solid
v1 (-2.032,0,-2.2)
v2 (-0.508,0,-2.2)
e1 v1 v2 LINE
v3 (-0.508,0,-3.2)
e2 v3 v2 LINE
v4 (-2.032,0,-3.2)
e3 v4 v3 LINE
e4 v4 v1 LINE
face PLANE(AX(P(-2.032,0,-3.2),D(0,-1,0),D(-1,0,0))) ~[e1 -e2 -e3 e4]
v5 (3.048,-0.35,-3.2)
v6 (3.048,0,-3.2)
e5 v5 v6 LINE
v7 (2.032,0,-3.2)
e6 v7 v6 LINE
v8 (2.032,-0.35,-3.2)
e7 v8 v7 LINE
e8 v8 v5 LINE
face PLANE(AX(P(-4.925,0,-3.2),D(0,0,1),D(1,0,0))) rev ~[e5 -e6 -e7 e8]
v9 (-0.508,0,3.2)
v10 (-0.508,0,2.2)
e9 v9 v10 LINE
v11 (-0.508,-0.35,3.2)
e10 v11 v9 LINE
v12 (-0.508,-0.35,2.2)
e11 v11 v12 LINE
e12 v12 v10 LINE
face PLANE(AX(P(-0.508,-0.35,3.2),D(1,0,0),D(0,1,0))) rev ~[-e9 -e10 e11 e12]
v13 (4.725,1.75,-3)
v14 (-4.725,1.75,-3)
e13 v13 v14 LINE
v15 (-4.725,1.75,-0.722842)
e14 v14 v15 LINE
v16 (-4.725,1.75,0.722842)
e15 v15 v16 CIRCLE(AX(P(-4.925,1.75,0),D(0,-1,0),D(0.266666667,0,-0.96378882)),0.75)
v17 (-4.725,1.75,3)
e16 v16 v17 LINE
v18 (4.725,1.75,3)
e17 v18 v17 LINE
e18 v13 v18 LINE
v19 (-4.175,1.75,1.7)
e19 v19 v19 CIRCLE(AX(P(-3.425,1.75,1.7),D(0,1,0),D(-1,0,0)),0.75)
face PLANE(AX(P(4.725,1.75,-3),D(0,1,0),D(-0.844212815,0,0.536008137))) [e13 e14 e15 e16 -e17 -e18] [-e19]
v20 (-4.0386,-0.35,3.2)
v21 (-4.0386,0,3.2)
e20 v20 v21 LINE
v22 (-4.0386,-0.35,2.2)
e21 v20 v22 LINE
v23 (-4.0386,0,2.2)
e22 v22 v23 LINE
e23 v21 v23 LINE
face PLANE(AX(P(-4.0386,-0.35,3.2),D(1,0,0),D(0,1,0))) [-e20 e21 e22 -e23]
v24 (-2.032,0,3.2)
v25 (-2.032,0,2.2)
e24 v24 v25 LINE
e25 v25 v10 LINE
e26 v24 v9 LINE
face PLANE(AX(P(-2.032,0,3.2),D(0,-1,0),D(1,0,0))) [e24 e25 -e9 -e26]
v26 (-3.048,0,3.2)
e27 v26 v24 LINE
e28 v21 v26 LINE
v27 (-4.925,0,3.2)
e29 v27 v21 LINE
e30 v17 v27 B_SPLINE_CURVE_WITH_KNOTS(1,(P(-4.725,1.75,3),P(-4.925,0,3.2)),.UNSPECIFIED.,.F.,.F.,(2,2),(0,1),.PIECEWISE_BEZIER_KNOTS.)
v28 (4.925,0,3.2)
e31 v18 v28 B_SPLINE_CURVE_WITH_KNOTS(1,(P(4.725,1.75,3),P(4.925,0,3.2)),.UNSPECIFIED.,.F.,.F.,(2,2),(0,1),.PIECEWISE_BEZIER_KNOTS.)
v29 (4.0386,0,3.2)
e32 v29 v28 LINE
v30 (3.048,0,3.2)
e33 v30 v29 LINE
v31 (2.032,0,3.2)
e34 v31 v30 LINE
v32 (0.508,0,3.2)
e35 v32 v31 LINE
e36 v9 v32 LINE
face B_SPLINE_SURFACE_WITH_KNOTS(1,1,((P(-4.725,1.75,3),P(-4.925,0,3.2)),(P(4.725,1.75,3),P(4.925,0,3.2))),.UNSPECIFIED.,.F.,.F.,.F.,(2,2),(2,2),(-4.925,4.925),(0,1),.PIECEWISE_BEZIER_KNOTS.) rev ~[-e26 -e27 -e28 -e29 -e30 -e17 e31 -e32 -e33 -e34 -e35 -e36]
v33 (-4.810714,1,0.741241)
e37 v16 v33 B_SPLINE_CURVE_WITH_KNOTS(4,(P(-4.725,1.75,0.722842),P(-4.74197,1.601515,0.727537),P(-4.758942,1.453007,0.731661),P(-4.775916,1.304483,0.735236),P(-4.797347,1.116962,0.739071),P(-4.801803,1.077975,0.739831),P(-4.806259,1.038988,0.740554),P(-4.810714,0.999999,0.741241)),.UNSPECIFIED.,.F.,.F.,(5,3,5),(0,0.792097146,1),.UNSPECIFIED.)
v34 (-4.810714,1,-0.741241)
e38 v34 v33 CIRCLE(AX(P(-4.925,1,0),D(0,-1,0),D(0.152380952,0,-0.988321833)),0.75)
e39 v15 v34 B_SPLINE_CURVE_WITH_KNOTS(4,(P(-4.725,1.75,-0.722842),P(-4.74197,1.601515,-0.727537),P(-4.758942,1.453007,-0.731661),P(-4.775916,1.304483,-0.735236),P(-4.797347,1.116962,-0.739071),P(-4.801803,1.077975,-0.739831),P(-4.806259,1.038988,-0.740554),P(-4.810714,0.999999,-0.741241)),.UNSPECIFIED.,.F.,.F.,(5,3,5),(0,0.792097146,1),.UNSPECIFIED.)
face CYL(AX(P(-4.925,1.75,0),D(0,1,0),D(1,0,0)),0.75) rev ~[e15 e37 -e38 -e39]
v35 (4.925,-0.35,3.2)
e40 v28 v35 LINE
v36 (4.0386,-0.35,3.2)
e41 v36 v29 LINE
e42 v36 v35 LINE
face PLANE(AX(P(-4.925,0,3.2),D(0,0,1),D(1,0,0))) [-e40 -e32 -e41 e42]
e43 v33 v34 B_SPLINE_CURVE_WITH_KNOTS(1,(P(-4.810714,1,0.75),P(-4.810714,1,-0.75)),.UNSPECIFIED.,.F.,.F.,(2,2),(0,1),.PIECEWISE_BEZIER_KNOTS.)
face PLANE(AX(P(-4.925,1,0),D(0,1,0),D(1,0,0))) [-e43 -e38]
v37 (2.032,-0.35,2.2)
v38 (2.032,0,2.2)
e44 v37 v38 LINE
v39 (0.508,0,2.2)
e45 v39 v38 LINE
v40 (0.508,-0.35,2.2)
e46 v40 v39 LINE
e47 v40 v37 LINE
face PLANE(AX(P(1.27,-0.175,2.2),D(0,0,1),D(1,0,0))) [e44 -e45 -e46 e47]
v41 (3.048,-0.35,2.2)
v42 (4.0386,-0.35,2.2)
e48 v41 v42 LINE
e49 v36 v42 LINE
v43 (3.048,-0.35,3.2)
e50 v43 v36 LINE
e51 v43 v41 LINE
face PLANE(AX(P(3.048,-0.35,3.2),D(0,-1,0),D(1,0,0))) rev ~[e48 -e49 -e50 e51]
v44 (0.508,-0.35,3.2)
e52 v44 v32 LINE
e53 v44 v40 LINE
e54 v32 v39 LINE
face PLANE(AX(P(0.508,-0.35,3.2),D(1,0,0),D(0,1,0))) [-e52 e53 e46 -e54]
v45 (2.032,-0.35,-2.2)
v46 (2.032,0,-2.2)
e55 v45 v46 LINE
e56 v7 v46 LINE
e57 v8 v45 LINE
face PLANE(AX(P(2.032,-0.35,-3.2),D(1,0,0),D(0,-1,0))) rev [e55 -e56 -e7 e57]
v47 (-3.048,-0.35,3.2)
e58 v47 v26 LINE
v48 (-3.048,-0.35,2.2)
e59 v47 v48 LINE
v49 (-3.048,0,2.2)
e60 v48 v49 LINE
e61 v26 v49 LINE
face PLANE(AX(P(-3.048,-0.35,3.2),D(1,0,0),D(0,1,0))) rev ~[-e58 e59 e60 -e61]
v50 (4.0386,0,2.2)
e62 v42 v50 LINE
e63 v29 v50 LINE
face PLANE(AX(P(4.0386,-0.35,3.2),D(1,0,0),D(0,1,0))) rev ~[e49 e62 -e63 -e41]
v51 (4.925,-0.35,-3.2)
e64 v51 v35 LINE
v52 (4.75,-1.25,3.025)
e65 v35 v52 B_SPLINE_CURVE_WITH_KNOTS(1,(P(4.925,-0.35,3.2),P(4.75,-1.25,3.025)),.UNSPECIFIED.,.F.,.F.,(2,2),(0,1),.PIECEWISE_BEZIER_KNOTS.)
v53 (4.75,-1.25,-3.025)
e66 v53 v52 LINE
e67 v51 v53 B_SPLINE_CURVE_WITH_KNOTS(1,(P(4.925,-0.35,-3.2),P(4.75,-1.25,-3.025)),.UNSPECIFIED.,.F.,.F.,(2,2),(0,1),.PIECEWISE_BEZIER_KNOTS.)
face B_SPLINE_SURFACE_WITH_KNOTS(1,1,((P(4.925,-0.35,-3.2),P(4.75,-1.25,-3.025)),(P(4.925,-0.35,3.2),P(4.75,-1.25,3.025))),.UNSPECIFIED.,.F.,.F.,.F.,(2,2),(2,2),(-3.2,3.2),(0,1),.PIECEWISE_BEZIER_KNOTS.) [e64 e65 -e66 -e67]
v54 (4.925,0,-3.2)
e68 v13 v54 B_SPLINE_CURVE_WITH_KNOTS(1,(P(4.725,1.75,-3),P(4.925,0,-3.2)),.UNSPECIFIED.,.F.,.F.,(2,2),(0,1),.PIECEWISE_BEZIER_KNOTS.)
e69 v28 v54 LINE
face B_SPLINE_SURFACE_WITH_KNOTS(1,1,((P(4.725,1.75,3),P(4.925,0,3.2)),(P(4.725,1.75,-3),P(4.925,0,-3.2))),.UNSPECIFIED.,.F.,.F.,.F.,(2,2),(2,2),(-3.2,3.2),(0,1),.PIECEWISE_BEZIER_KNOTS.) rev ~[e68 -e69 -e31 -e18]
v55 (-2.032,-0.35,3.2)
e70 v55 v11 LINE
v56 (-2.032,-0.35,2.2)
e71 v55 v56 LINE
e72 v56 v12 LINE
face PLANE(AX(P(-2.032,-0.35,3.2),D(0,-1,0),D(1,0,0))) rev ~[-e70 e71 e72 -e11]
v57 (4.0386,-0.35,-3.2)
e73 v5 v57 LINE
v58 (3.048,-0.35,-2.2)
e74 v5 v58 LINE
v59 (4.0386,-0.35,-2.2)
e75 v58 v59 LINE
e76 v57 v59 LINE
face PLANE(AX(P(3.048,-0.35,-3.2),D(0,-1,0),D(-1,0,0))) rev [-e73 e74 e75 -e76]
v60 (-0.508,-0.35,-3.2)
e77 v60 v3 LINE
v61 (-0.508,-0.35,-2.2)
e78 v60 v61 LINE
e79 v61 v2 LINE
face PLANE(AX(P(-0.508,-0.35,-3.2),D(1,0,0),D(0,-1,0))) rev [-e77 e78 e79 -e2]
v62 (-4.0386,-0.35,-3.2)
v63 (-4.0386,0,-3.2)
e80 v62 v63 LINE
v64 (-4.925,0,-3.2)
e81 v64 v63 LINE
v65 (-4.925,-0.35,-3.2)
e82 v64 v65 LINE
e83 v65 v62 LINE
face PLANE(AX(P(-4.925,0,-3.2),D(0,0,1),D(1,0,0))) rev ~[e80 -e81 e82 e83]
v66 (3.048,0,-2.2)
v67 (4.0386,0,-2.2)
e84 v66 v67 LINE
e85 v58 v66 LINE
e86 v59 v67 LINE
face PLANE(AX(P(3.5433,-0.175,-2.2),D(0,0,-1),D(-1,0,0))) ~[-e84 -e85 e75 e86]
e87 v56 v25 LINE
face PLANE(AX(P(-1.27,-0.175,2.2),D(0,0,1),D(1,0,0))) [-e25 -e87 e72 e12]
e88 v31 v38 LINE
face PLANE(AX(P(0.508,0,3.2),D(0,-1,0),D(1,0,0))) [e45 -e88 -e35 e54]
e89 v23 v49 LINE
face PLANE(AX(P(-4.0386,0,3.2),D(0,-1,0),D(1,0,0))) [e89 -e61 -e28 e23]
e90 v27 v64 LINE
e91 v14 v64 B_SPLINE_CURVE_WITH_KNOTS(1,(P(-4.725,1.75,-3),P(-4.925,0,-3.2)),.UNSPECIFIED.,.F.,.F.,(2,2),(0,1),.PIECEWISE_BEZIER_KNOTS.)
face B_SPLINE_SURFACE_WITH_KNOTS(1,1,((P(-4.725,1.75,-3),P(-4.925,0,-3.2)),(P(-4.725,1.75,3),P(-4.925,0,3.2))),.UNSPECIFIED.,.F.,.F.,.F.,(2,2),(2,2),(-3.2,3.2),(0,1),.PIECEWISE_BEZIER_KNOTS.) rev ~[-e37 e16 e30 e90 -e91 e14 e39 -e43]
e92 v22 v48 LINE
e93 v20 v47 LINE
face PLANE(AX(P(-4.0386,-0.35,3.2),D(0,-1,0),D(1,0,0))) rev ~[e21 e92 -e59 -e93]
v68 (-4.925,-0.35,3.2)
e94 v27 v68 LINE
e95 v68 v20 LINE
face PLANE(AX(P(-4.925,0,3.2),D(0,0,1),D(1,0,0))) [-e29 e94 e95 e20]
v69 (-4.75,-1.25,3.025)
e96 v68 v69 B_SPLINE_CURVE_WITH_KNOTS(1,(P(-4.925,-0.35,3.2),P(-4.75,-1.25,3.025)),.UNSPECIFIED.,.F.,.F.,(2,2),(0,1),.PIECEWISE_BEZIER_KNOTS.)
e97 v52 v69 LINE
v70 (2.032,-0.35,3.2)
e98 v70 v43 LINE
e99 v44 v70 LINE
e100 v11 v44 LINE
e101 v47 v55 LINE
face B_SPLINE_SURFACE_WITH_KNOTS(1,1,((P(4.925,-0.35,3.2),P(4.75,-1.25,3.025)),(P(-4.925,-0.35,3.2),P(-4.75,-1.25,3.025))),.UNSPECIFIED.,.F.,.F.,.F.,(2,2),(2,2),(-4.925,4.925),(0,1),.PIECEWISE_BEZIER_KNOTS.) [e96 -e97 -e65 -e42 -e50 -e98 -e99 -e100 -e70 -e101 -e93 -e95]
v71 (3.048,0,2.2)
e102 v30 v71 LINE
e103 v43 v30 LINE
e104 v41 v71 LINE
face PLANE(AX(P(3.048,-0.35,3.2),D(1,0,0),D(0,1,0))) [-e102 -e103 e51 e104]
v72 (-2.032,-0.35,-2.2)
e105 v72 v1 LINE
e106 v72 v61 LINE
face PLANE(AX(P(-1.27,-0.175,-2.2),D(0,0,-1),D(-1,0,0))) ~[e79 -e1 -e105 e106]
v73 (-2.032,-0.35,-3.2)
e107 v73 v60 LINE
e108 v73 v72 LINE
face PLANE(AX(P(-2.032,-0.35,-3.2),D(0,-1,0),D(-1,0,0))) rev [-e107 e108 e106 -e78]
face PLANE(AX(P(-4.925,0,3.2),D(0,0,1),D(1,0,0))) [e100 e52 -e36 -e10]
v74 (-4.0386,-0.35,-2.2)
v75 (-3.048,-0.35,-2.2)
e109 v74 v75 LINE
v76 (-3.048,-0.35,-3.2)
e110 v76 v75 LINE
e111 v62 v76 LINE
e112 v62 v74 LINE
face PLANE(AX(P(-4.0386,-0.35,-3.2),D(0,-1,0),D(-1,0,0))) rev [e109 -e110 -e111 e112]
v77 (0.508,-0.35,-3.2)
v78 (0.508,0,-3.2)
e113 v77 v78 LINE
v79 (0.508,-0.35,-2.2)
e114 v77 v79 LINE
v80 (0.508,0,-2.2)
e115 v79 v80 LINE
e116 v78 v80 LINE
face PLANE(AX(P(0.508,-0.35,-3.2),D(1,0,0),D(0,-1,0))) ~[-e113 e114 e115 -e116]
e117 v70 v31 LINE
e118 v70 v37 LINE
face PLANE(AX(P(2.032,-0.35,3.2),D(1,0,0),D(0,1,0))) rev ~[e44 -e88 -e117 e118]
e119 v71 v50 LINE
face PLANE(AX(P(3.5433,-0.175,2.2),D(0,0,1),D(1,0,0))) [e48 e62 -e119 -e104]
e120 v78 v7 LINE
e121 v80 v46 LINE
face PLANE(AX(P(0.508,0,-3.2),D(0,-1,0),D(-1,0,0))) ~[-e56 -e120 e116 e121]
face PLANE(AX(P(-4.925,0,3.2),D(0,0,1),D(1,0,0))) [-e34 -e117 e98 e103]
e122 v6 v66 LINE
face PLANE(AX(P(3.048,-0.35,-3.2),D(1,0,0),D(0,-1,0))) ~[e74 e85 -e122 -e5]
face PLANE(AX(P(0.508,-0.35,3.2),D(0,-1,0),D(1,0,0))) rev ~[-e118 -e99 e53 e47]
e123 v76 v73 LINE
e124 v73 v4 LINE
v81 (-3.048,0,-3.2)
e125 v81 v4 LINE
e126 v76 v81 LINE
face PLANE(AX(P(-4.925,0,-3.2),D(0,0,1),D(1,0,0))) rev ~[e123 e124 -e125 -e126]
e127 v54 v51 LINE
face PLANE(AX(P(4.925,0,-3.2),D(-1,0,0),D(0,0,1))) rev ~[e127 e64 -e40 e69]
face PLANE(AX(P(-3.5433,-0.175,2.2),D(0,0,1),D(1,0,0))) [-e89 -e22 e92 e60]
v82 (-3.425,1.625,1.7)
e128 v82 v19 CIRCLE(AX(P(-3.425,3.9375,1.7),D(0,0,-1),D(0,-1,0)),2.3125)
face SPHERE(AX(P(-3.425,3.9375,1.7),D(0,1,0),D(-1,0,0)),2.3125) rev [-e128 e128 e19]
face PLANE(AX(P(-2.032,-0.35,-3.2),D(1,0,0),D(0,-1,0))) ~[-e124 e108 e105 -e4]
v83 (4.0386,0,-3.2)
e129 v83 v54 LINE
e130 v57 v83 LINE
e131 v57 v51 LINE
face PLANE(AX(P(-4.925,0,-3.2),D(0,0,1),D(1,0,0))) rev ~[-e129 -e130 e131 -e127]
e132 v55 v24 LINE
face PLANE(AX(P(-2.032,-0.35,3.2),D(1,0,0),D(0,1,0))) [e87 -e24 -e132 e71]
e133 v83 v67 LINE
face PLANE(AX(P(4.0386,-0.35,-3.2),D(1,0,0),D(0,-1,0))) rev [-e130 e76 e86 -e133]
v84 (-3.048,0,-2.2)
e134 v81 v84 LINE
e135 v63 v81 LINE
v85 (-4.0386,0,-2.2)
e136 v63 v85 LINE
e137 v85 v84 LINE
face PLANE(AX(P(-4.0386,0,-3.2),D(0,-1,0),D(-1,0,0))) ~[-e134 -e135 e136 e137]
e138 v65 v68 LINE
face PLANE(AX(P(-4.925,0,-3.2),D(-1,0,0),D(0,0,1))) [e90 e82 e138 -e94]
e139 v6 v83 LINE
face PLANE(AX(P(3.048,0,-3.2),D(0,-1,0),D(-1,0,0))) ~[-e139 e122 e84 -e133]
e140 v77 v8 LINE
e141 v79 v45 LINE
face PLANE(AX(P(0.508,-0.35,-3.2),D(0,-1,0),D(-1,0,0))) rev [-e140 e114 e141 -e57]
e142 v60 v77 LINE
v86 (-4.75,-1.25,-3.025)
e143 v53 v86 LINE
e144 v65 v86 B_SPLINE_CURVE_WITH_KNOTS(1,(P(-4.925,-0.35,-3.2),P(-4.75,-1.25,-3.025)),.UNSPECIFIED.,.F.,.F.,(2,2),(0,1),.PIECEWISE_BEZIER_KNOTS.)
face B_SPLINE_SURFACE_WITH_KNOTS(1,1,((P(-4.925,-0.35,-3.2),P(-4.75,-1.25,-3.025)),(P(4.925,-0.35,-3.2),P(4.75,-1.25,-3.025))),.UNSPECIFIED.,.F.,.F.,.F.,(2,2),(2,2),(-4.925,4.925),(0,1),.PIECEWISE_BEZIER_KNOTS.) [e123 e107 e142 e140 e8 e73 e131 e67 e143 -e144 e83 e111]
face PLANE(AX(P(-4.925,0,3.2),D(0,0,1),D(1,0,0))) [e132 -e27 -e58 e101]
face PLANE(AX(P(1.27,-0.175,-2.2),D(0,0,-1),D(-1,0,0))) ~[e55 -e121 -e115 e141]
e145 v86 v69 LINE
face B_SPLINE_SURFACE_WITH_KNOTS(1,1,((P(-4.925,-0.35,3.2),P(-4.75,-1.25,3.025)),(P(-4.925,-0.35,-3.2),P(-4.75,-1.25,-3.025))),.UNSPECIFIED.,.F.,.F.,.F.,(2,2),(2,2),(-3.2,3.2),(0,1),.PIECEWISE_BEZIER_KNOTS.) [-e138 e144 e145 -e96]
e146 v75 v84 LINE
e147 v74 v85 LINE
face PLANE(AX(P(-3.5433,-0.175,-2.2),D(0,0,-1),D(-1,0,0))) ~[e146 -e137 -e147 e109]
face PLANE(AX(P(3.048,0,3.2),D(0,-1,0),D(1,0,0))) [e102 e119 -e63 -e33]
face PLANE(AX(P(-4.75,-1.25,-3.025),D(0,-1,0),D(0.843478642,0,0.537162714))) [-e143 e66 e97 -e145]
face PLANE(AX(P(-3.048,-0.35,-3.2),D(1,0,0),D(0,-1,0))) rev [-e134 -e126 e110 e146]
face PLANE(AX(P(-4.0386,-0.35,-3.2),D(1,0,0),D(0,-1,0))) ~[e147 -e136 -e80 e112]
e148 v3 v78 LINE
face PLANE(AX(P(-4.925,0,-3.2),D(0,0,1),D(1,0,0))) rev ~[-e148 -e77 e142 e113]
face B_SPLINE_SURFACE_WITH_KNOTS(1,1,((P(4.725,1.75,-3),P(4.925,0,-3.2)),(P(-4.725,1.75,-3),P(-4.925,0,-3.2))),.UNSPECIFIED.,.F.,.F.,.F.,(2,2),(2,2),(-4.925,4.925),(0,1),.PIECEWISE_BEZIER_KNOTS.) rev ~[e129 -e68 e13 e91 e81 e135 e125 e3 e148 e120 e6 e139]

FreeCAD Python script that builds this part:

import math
import FreeCAD as App
import Part
import Sketcher

V = App.Vector
Q = App.Units.Quantity


def add_polygon(sketch, points):
    """Adds a closed chain of lines whose ends are joined by coincident constraints."""
    first, n = sketch.GeometryCount, len(points)
    for a, b in zip(points, points[1:] + points[:1]):
        sketch.addGeometry(Part.LineSegment(App.Vector(*a, 0), App.Vector(*b, 0)), False)
    for i in range(n):
        sketch.addConstraint(Sketcher.Constraint("Coincident", first + i, 2, first + (i + 1) % n, 1))

doc = App.newDocument("Part")
body = doc.addObject("PartDesign::Body", "Body")

sketch1 = body.newObject("Sketcher::SketchObject", "Sketch")
sketch1.AttachmentSupport = (doc.getObject("XZ_Plane"), [""])
sketch1.MapMode = "FlatFace"
sketch1.AttachmentOffset = App.Placement(V(0, 0, -1.75), App.Rotation())
add_polygon(sketch1, [(5, 3), (5, -3), (-5, -3), (-5, 3)])
sketch1.addConstraint([
    Sketcher.Constraint("Vertical", 0),
    Sketcher.Constraint("Horizontal", 1),
    Sketcher.Constraint("Vertical", 2),
    Sketcher.Constraint("Horizontal", 3),
    Sketcher.Constraint("Symmetric", 0, 2, 2, 2, -1, 1),
    Sketcher.Constraint("DistanceY", 0, 2, 0, 1, Q("6 mm")),
    Sketcher.Constraint("DistanceX", 1, 2, 1, 1, Q("9.45 mm")),
])

sketch2 = body.newObject("Sketcher::SketchObject", "Sketch001")
sketch2.AttachmentSupport = (doc.getObject("XZ_Plane"), [""])
sketch2.MapMode = "FlatFace"
add_polygon(sketch2, [(-5, -3), (-5, 3), (5, 3), (5, -3)])
sketch2.addConstraint([
    Sketcher.Constraint("Vertical", 0),
    Sketcher.Constraint("Horizontal", 1),
    Sketcher.Constraint("Vertical", 2),
    Sketcher.Constraint("Horizontal", 3),
    Sketcher.Constraint("Symmetric", 0, 2, 2, 2, -1, 1),
    Sketcher.Constraint("DistanceY", 0, 1, 0, 2, Q("6.4 mm")),
    Sketcher.Constraint("DistanceX", 1, 1, 1, 2, Q("9.85 mm")),
])

additiveloft = body.newObject("PartDesign::AdditiveLoft", "AdditiveLoft")
additiveloft.Profile = sketch1
additiveloft.Sections = [sketch2]

sketch3 = body.newObject("Sketcher::SketchObject", "Sketch002")
sketch3.AttachmentSupport = (doc.getObject("XZ_Plane"), [""])
sketch3.MapMode = "FlatFace"
add_polygon(sketch3, [(-5, 3), (-5, -3), (5, -3), (5, 3)])
sketch3.addConstraint([
    Sketcher.Constraint("Vertical", 0),
    Sketcher.Constraint("Horizontal", 1),
    Sketcher.Constraint("Vertical", 2),
    Sketcher.Constraint("Horizontal", 3),
    Sketcher.Constraint("Symmetric", 0, 2, 2, 2, -1, 1),
    Sketcher.Constraint("DistanceY", 0, 2, 0, 1, Q("6.4 mm")),
    Sketcher.Constraint("DistanceX", 1, 1, 1, 2, Q("9.85 mm")),
])
pad1 = body.newObject("PartDesign::Pad", "Pad")
pad1.Profile = sketch3
pad1.Length = 0.35

sketch4 = body.newObject("Sketcher::SketchObject", "Sketch003")
sketch4.AttachmentSupport = (doc.getObject("XZ_Plane"), [""])
sketch4.MapMode = "FlatFace"
sketch4.AttachmentOffset = App.Placement(V(0, 0, 0.35), App.Rotation())
add_polygon(sketch4, [(-5, 3), (-5, -3), (5, -3), (5, 3)])
sketch4.addConstraint([
    Sketcher.Constraint("Vertical", 0),
    Sketcher.Constraint("Horizontal", 1),
    Sketcher.Constraint("Vertical", 2),
    Sketcher.Constraint("Horizontal", 3),
    Sketcher.Constraint("Symmetric", 0, 2, 2, 2, -1, 1),
    Sketcher.Constraint("DistanceY", 0, 2, 0, 1, Q("6.4 mm")),
    Sketcher.Constraint("DistanceX", 1, 1, 1, 2, Q("9.85 mm")),
])

sketch5 = body.newObject("Sketcher::SketchObject", "Sketch004")
sketch5.AttachmentSupport = (doc.getObject("XZ_Plane"), [""])
sketch5.MapMode = "FlatFace"
sketch5.AttachmentOffset = App.Placement(V(0, 0, 1.25), App.Rotation())
add_polygon(sketch5, [(5, 3), (5, -3), (-5, -3), (-5, 3)])
sketch5.addConstraint([
    Sketcher.Constraint("Vertical", 0),
    Sketcher.Constraint("Horizontal", 1),
    Sketcher.Constraint("Vertical", 2),
    Sketcher.Constraint("Horizontal", 3),
    Sketcher.Constraint("Symmetric", 0, 2, 2, 2, -1, 1),
    Sketcher.Constraint("DistanceX", 1, 2, 1, 1, Q("9.5 mm")),
    Sketcher.Constraint("DistanceY", 0, 2, 0, 1, Q("6.05 mm")),
])

additiveloft2 = body.newObject("PartDesign::AdditiveLoft", "AdditiveLoft001")
additiveloft2.Profile = sketch4
additiveloft2.Sections = [sketch5]

sketch6 = body.newObject("Sketcher::SketchObject", "Sketch005")
sketch6.AttachmentSupport = (doc.getObject("XZ_Plane"), [""])
sketch6.MapMode = "FlatFace"
sketch6.AttachmentOffset = App.Placement(V(0, 0, -1.75), App.Rotation())
sketch6.addGeometry(Part.Circle(V(-4.9, 0, 0), V(0, 0, 1), 0.8), False)
sketch6.addConstraint([
    Sketcher.Constraint("PointOnObject", 0, 3, -1),
    Sketcher.Constraint("Diameter", 0, Q("1.5 mm")),
    Sketcher.Constraint("DistanceX", 0, 3, -1, 1, Q("4.925 mm")),
])
pocket1 = body.newObject("PartDesign::Pocket", "Pocket")
pocket1.Profile = sketch6
pocket1.Length = 0.75
pocket1.Reversed = True

sketch7 = body.newObject("Sketcher::SketchObject", "Sketch006")
sketch7.AttachmentSupport = (doc.getObject("XY_Plane"), [""])
sketch7.MapMode = "FlatFace"
sketch7.AttachmentOffset = App.Placement(V(0, 0, 1.7), App.Rotation())
sketch7.addGeometry([
    Part.LineSegment(V(-3.4, 1.6, 0), V(-3.4, 6.2, 0)),
    Part.ArcOfCircle(Part.Circle(V(-3.4, 3.9, 0), V(0, 0, 1), 2.3), math.radians(90), math.radians(270)),
], False)
sketch7.addGeometry(Part.LineSegment(V(-3.4, 6.2, 0), V(-3.4, 1.6, 0)), True)
sketch7.addConstraint([
    Sketcher.Constraint("Coincident", 0, 1, 1, 2),
    Sketcher.Constraint("Coincident", 1, 1, 0, 2),
    Sketcher.Constraint("Vertical", 0),
    Sketcher.Constraint("Vertical", 2),
    Sketcher.Constraint("Coincident", 2, 1, 1, 1),
    Sketcher.Constraint("Vertical", 1, 3, 0, 1),
    Sketcher.Constraint("Equal", 0, 2),
    Sketcher.Constraint("Radius", 1, Q("2.3125 mm")),
    Sketcher.Constraint("DistanceY", -1, 1, 1, 1, Q("6.25 mm")),
    Sketcher.Constraint("DistanceX", 1, 3, -1, 1, Q("3.425 mm")),
])
groove = body.newObject("PartDesign::Groove", "Groove")
groove.Profile = sketch7
groove.ReferenceAxis = (sketch7, ["Axis0"])
groove.Angle = 360

sketch8 = body.newObject("Sketcher::SketchObject", "Sketch007")
sketch8.AttachmentSupport = (doc.getObject("XY_Plane"), [""])
sketch8.MapMode = "FlatFace"
sketch8.AttachmentOffset = App.Placement(V(0, 0, 3.2), App.Rotation())
add_polygon(sketch8, [(-2.03, 0), (-2.03, -0.35), (-0.51, -0.35), (-0.51, 0)])
add_polygon(sketch8, [(0.51, 0), (0.51, -0.35), (2.03, -0.35), (2.03, 0)])
add_polygon(sketch8, [(3.05, 0), (3.05, -0.35), (4.04, -0.35), (4.04, 0)])
add_polygon(sketch8, [(-4.04, 0), (-4.04, -0.35), (-3.05, -0.35), (-3.05, 0)])
sketch8.addConstraint([
    Sketcher.Constraint("Vertical", 0),
    Sketcher.Constraint("Horizontal", 1),
    Sketcher.Constraint("Vertical", 2),
    Sketcher.Constraint("Horizontal", 3),
    Sketcher.Constraint("Vertical", 4),
    Sketcher.Constraint("Horizontal", 5),
    Sketcher.Constraint("Vertical", 6),
    Sketcher.Constraint("Horizontal", 7),
    Sketcher.Constraint("Vertical", 8),
    Sketcher.Constraint("Horizontal", 9),
    Sketcher.Constraint("Vertical", 10),
    Sketcher.Constraint("Horizontal", 11),
    Sketcher.Constraint("Vertical", 12),
    Sketcher.Constraint("Horizontal", 13),
    Sketcher.Constraint("Vertical", 14),
    Sketcher.Constraint("Horizontal", 15),
    Sketcher.Constraint("Symmetric", 3, 2, 6, 2, -1, 1),
    Sketcher.Constraint("Symmetric", 11, 2, 14, 2, -1, 1),
    Sketcher.Constraint("Symmetric", 1, 2, 4, 2, -2),
    Sketcher.Constraint("Symmetric", 9, 2, 12, 2, -2),
    Sketcher.Constraint("PointOnObject", 2, 2, -1),
    Sketcher.Constraint("PointOnObject", 10, 2, -1),
    Sketcher.Constraint("Horizontal", 5, 2, 8, 2),
    Sketcher.Constraint("DistanceY", 0, 2, 0, 1, Q("0.35 mm")),
    Sketcher.Constraint("DistanceX", 1, 1, 1, 2, Q("1.524 mm")),
    Sketcher.Constraint("DistanceX", 0, 2, 4, 2, Q("2.54 mm")),
    Sketcher.Constraint("DistanceX", 4, 2, 8, 2, Q("2.54 mm")),
    Sketcher.Constraint("DistanceX", 9, 1, 9, 2, Q("0.9906 mm")),
])
pocket2 = body.newObject("PartDesign::Pocket", "Pocket001")
pocket2.Profile = sketch8
pocket2.Length = 1
doc.recompute()

mirrored = body.newObject("PartDesign::Mirrored", "Mirrored")
mirrored.Originals = [pocket2]
mirrored.MirrorPlane = (doc.getObject("XY_Plane"), [""])
body.Tip = mirrored

doc.recompute()
